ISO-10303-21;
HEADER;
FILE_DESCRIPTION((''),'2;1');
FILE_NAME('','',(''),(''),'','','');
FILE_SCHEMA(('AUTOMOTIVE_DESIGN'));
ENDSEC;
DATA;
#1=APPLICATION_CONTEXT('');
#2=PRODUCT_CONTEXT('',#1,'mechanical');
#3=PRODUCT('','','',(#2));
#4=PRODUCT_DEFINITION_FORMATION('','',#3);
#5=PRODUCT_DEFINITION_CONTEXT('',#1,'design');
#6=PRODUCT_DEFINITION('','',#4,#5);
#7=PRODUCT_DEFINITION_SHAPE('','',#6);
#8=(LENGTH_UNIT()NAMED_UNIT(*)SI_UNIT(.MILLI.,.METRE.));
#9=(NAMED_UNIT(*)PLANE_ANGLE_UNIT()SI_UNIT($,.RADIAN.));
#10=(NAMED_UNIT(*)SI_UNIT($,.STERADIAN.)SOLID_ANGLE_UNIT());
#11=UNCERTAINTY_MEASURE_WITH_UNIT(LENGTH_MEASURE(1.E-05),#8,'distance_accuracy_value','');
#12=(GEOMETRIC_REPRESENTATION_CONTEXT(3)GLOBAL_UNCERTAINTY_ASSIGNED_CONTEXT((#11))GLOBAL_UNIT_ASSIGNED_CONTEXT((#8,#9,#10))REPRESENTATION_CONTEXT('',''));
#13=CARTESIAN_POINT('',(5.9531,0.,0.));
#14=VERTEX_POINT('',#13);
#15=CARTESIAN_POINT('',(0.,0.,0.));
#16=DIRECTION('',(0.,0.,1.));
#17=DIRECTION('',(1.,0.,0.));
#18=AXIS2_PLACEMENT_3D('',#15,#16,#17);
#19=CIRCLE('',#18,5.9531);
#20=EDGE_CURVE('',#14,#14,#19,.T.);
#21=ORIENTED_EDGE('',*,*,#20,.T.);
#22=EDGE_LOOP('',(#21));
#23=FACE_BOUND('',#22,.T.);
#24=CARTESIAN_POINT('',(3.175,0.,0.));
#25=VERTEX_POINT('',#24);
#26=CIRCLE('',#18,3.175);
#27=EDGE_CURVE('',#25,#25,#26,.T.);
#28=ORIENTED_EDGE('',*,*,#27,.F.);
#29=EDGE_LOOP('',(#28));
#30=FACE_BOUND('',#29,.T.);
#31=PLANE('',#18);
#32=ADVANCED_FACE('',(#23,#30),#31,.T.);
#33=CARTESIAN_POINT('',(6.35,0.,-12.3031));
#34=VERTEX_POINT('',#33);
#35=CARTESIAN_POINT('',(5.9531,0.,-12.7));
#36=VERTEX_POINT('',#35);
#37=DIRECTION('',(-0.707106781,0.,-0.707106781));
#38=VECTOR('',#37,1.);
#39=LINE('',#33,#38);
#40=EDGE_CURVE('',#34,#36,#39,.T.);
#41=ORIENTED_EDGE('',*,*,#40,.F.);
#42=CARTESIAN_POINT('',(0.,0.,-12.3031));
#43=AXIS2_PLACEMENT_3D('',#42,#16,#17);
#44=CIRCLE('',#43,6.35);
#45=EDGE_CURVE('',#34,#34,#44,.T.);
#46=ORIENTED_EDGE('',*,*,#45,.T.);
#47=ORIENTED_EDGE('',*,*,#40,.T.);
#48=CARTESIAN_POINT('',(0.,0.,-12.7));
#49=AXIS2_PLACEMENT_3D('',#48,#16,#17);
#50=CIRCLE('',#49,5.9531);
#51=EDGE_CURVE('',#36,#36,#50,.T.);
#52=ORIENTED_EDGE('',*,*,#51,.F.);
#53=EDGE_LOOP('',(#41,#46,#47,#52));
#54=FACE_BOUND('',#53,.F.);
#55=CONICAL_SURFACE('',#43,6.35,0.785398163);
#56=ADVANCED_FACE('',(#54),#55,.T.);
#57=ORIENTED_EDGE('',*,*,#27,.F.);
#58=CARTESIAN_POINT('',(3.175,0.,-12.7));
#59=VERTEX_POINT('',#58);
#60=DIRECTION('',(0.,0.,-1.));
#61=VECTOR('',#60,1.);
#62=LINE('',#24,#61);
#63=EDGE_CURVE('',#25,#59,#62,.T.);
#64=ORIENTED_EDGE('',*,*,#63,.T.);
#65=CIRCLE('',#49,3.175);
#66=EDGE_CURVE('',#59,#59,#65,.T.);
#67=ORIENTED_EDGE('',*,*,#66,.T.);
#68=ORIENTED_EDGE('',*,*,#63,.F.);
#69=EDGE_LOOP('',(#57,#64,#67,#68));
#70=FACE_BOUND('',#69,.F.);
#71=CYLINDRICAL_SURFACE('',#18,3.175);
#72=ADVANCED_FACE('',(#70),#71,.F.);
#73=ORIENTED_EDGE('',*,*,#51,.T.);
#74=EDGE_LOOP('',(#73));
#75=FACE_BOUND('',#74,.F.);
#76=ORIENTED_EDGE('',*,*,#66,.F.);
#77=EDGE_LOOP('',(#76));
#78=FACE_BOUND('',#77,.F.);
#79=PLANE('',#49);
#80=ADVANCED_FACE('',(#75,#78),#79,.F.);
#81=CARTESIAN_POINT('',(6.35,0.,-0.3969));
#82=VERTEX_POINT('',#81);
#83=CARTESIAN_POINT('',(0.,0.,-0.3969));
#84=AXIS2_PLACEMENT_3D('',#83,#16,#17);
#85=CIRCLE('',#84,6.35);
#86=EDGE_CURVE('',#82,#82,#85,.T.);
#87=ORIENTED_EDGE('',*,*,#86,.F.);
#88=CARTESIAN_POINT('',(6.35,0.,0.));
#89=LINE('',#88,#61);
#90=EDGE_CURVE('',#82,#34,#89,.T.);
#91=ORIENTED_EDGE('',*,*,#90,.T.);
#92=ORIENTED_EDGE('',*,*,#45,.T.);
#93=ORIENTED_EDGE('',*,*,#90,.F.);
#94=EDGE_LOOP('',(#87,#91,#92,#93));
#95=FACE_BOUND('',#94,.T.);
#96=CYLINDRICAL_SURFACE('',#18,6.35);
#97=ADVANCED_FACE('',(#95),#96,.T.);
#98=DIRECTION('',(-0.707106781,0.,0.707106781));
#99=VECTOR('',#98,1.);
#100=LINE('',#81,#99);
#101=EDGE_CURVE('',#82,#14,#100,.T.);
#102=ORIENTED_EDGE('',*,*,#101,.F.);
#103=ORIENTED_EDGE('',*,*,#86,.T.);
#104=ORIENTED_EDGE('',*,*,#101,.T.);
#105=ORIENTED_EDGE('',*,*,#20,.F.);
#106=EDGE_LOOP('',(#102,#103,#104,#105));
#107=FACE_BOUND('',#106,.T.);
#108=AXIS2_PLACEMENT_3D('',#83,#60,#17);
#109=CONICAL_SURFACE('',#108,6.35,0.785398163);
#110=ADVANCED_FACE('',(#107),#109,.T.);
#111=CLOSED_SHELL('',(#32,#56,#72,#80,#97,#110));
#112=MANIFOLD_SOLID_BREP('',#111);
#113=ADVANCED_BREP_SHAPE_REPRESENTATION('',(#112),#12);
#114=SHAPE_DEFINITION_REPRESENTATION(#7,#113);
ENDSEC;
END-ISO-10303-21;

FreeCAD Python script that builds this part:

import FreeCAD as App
import Part
import Sketcher
from FreeCAD import Vector
Q = App.Units.Quantity


def edges_at(feature, points):
    """Names of the edges that pass closest to the given points."""
    edges = feature.Shape.Edges
    near = lambda p: min(range(len(edges)), key=lambda i: edges[i].distToShape(Part.Vertex(*p))[0])
    return sorted({f"Edge{near(p) + 1}" for p in points})

doc = App.newDocument("Part")
body = doc.addObject("PartDesign::Body", "Body")

# Sketch on XY plane
sketch1 = body.newObject("Sketcher::SketchObject", "Sketch")
sketch1.AttachmentSupport = (doc.getObject("XY_Plane"), [""])
sketch1.MapMode = "FlatFace"
sketch1.addGeometry(Part.Circle(Vector(0, 0, 0), Vector(0, 0, 1), 6.35), False)
sketch1.addGeometry(Part.Circle(Vector(0, 0, 0), Vector(0, 0, 1), 3.175), False)
sketch1.addConstraint(Sketcher.Constraint("Coincident", 0, 3, -1, 1))
sketch1.addConstraint(Sketcher.Constraint("Coincident", 1, 3, -1, 1))
sketch1.addConstraint(Sketcher.Constraint("Diameter", 0, Q("0.5 in")))
sketch1.addConstraint(Sketcher.Constraint("Diameter", 1, Q("0.25 in")))
pad1 = body.newObject("PartDesign::Pad", "Pad")
pad1.Profile = sketch1
pad1.Length = Q("0.5 in")
pad1.Reversed = True
doc.recompute()

chamfer = body.newObject("PartDesign::Chamfer", "Chamfer")
chamfer.Base = (pad1, edges_at(pad1, [(-6.35, 0, 0), (-6.35, 0, -12.7)]))
chamfer.Size = Q("0.015626 in")

doc.recompute()
